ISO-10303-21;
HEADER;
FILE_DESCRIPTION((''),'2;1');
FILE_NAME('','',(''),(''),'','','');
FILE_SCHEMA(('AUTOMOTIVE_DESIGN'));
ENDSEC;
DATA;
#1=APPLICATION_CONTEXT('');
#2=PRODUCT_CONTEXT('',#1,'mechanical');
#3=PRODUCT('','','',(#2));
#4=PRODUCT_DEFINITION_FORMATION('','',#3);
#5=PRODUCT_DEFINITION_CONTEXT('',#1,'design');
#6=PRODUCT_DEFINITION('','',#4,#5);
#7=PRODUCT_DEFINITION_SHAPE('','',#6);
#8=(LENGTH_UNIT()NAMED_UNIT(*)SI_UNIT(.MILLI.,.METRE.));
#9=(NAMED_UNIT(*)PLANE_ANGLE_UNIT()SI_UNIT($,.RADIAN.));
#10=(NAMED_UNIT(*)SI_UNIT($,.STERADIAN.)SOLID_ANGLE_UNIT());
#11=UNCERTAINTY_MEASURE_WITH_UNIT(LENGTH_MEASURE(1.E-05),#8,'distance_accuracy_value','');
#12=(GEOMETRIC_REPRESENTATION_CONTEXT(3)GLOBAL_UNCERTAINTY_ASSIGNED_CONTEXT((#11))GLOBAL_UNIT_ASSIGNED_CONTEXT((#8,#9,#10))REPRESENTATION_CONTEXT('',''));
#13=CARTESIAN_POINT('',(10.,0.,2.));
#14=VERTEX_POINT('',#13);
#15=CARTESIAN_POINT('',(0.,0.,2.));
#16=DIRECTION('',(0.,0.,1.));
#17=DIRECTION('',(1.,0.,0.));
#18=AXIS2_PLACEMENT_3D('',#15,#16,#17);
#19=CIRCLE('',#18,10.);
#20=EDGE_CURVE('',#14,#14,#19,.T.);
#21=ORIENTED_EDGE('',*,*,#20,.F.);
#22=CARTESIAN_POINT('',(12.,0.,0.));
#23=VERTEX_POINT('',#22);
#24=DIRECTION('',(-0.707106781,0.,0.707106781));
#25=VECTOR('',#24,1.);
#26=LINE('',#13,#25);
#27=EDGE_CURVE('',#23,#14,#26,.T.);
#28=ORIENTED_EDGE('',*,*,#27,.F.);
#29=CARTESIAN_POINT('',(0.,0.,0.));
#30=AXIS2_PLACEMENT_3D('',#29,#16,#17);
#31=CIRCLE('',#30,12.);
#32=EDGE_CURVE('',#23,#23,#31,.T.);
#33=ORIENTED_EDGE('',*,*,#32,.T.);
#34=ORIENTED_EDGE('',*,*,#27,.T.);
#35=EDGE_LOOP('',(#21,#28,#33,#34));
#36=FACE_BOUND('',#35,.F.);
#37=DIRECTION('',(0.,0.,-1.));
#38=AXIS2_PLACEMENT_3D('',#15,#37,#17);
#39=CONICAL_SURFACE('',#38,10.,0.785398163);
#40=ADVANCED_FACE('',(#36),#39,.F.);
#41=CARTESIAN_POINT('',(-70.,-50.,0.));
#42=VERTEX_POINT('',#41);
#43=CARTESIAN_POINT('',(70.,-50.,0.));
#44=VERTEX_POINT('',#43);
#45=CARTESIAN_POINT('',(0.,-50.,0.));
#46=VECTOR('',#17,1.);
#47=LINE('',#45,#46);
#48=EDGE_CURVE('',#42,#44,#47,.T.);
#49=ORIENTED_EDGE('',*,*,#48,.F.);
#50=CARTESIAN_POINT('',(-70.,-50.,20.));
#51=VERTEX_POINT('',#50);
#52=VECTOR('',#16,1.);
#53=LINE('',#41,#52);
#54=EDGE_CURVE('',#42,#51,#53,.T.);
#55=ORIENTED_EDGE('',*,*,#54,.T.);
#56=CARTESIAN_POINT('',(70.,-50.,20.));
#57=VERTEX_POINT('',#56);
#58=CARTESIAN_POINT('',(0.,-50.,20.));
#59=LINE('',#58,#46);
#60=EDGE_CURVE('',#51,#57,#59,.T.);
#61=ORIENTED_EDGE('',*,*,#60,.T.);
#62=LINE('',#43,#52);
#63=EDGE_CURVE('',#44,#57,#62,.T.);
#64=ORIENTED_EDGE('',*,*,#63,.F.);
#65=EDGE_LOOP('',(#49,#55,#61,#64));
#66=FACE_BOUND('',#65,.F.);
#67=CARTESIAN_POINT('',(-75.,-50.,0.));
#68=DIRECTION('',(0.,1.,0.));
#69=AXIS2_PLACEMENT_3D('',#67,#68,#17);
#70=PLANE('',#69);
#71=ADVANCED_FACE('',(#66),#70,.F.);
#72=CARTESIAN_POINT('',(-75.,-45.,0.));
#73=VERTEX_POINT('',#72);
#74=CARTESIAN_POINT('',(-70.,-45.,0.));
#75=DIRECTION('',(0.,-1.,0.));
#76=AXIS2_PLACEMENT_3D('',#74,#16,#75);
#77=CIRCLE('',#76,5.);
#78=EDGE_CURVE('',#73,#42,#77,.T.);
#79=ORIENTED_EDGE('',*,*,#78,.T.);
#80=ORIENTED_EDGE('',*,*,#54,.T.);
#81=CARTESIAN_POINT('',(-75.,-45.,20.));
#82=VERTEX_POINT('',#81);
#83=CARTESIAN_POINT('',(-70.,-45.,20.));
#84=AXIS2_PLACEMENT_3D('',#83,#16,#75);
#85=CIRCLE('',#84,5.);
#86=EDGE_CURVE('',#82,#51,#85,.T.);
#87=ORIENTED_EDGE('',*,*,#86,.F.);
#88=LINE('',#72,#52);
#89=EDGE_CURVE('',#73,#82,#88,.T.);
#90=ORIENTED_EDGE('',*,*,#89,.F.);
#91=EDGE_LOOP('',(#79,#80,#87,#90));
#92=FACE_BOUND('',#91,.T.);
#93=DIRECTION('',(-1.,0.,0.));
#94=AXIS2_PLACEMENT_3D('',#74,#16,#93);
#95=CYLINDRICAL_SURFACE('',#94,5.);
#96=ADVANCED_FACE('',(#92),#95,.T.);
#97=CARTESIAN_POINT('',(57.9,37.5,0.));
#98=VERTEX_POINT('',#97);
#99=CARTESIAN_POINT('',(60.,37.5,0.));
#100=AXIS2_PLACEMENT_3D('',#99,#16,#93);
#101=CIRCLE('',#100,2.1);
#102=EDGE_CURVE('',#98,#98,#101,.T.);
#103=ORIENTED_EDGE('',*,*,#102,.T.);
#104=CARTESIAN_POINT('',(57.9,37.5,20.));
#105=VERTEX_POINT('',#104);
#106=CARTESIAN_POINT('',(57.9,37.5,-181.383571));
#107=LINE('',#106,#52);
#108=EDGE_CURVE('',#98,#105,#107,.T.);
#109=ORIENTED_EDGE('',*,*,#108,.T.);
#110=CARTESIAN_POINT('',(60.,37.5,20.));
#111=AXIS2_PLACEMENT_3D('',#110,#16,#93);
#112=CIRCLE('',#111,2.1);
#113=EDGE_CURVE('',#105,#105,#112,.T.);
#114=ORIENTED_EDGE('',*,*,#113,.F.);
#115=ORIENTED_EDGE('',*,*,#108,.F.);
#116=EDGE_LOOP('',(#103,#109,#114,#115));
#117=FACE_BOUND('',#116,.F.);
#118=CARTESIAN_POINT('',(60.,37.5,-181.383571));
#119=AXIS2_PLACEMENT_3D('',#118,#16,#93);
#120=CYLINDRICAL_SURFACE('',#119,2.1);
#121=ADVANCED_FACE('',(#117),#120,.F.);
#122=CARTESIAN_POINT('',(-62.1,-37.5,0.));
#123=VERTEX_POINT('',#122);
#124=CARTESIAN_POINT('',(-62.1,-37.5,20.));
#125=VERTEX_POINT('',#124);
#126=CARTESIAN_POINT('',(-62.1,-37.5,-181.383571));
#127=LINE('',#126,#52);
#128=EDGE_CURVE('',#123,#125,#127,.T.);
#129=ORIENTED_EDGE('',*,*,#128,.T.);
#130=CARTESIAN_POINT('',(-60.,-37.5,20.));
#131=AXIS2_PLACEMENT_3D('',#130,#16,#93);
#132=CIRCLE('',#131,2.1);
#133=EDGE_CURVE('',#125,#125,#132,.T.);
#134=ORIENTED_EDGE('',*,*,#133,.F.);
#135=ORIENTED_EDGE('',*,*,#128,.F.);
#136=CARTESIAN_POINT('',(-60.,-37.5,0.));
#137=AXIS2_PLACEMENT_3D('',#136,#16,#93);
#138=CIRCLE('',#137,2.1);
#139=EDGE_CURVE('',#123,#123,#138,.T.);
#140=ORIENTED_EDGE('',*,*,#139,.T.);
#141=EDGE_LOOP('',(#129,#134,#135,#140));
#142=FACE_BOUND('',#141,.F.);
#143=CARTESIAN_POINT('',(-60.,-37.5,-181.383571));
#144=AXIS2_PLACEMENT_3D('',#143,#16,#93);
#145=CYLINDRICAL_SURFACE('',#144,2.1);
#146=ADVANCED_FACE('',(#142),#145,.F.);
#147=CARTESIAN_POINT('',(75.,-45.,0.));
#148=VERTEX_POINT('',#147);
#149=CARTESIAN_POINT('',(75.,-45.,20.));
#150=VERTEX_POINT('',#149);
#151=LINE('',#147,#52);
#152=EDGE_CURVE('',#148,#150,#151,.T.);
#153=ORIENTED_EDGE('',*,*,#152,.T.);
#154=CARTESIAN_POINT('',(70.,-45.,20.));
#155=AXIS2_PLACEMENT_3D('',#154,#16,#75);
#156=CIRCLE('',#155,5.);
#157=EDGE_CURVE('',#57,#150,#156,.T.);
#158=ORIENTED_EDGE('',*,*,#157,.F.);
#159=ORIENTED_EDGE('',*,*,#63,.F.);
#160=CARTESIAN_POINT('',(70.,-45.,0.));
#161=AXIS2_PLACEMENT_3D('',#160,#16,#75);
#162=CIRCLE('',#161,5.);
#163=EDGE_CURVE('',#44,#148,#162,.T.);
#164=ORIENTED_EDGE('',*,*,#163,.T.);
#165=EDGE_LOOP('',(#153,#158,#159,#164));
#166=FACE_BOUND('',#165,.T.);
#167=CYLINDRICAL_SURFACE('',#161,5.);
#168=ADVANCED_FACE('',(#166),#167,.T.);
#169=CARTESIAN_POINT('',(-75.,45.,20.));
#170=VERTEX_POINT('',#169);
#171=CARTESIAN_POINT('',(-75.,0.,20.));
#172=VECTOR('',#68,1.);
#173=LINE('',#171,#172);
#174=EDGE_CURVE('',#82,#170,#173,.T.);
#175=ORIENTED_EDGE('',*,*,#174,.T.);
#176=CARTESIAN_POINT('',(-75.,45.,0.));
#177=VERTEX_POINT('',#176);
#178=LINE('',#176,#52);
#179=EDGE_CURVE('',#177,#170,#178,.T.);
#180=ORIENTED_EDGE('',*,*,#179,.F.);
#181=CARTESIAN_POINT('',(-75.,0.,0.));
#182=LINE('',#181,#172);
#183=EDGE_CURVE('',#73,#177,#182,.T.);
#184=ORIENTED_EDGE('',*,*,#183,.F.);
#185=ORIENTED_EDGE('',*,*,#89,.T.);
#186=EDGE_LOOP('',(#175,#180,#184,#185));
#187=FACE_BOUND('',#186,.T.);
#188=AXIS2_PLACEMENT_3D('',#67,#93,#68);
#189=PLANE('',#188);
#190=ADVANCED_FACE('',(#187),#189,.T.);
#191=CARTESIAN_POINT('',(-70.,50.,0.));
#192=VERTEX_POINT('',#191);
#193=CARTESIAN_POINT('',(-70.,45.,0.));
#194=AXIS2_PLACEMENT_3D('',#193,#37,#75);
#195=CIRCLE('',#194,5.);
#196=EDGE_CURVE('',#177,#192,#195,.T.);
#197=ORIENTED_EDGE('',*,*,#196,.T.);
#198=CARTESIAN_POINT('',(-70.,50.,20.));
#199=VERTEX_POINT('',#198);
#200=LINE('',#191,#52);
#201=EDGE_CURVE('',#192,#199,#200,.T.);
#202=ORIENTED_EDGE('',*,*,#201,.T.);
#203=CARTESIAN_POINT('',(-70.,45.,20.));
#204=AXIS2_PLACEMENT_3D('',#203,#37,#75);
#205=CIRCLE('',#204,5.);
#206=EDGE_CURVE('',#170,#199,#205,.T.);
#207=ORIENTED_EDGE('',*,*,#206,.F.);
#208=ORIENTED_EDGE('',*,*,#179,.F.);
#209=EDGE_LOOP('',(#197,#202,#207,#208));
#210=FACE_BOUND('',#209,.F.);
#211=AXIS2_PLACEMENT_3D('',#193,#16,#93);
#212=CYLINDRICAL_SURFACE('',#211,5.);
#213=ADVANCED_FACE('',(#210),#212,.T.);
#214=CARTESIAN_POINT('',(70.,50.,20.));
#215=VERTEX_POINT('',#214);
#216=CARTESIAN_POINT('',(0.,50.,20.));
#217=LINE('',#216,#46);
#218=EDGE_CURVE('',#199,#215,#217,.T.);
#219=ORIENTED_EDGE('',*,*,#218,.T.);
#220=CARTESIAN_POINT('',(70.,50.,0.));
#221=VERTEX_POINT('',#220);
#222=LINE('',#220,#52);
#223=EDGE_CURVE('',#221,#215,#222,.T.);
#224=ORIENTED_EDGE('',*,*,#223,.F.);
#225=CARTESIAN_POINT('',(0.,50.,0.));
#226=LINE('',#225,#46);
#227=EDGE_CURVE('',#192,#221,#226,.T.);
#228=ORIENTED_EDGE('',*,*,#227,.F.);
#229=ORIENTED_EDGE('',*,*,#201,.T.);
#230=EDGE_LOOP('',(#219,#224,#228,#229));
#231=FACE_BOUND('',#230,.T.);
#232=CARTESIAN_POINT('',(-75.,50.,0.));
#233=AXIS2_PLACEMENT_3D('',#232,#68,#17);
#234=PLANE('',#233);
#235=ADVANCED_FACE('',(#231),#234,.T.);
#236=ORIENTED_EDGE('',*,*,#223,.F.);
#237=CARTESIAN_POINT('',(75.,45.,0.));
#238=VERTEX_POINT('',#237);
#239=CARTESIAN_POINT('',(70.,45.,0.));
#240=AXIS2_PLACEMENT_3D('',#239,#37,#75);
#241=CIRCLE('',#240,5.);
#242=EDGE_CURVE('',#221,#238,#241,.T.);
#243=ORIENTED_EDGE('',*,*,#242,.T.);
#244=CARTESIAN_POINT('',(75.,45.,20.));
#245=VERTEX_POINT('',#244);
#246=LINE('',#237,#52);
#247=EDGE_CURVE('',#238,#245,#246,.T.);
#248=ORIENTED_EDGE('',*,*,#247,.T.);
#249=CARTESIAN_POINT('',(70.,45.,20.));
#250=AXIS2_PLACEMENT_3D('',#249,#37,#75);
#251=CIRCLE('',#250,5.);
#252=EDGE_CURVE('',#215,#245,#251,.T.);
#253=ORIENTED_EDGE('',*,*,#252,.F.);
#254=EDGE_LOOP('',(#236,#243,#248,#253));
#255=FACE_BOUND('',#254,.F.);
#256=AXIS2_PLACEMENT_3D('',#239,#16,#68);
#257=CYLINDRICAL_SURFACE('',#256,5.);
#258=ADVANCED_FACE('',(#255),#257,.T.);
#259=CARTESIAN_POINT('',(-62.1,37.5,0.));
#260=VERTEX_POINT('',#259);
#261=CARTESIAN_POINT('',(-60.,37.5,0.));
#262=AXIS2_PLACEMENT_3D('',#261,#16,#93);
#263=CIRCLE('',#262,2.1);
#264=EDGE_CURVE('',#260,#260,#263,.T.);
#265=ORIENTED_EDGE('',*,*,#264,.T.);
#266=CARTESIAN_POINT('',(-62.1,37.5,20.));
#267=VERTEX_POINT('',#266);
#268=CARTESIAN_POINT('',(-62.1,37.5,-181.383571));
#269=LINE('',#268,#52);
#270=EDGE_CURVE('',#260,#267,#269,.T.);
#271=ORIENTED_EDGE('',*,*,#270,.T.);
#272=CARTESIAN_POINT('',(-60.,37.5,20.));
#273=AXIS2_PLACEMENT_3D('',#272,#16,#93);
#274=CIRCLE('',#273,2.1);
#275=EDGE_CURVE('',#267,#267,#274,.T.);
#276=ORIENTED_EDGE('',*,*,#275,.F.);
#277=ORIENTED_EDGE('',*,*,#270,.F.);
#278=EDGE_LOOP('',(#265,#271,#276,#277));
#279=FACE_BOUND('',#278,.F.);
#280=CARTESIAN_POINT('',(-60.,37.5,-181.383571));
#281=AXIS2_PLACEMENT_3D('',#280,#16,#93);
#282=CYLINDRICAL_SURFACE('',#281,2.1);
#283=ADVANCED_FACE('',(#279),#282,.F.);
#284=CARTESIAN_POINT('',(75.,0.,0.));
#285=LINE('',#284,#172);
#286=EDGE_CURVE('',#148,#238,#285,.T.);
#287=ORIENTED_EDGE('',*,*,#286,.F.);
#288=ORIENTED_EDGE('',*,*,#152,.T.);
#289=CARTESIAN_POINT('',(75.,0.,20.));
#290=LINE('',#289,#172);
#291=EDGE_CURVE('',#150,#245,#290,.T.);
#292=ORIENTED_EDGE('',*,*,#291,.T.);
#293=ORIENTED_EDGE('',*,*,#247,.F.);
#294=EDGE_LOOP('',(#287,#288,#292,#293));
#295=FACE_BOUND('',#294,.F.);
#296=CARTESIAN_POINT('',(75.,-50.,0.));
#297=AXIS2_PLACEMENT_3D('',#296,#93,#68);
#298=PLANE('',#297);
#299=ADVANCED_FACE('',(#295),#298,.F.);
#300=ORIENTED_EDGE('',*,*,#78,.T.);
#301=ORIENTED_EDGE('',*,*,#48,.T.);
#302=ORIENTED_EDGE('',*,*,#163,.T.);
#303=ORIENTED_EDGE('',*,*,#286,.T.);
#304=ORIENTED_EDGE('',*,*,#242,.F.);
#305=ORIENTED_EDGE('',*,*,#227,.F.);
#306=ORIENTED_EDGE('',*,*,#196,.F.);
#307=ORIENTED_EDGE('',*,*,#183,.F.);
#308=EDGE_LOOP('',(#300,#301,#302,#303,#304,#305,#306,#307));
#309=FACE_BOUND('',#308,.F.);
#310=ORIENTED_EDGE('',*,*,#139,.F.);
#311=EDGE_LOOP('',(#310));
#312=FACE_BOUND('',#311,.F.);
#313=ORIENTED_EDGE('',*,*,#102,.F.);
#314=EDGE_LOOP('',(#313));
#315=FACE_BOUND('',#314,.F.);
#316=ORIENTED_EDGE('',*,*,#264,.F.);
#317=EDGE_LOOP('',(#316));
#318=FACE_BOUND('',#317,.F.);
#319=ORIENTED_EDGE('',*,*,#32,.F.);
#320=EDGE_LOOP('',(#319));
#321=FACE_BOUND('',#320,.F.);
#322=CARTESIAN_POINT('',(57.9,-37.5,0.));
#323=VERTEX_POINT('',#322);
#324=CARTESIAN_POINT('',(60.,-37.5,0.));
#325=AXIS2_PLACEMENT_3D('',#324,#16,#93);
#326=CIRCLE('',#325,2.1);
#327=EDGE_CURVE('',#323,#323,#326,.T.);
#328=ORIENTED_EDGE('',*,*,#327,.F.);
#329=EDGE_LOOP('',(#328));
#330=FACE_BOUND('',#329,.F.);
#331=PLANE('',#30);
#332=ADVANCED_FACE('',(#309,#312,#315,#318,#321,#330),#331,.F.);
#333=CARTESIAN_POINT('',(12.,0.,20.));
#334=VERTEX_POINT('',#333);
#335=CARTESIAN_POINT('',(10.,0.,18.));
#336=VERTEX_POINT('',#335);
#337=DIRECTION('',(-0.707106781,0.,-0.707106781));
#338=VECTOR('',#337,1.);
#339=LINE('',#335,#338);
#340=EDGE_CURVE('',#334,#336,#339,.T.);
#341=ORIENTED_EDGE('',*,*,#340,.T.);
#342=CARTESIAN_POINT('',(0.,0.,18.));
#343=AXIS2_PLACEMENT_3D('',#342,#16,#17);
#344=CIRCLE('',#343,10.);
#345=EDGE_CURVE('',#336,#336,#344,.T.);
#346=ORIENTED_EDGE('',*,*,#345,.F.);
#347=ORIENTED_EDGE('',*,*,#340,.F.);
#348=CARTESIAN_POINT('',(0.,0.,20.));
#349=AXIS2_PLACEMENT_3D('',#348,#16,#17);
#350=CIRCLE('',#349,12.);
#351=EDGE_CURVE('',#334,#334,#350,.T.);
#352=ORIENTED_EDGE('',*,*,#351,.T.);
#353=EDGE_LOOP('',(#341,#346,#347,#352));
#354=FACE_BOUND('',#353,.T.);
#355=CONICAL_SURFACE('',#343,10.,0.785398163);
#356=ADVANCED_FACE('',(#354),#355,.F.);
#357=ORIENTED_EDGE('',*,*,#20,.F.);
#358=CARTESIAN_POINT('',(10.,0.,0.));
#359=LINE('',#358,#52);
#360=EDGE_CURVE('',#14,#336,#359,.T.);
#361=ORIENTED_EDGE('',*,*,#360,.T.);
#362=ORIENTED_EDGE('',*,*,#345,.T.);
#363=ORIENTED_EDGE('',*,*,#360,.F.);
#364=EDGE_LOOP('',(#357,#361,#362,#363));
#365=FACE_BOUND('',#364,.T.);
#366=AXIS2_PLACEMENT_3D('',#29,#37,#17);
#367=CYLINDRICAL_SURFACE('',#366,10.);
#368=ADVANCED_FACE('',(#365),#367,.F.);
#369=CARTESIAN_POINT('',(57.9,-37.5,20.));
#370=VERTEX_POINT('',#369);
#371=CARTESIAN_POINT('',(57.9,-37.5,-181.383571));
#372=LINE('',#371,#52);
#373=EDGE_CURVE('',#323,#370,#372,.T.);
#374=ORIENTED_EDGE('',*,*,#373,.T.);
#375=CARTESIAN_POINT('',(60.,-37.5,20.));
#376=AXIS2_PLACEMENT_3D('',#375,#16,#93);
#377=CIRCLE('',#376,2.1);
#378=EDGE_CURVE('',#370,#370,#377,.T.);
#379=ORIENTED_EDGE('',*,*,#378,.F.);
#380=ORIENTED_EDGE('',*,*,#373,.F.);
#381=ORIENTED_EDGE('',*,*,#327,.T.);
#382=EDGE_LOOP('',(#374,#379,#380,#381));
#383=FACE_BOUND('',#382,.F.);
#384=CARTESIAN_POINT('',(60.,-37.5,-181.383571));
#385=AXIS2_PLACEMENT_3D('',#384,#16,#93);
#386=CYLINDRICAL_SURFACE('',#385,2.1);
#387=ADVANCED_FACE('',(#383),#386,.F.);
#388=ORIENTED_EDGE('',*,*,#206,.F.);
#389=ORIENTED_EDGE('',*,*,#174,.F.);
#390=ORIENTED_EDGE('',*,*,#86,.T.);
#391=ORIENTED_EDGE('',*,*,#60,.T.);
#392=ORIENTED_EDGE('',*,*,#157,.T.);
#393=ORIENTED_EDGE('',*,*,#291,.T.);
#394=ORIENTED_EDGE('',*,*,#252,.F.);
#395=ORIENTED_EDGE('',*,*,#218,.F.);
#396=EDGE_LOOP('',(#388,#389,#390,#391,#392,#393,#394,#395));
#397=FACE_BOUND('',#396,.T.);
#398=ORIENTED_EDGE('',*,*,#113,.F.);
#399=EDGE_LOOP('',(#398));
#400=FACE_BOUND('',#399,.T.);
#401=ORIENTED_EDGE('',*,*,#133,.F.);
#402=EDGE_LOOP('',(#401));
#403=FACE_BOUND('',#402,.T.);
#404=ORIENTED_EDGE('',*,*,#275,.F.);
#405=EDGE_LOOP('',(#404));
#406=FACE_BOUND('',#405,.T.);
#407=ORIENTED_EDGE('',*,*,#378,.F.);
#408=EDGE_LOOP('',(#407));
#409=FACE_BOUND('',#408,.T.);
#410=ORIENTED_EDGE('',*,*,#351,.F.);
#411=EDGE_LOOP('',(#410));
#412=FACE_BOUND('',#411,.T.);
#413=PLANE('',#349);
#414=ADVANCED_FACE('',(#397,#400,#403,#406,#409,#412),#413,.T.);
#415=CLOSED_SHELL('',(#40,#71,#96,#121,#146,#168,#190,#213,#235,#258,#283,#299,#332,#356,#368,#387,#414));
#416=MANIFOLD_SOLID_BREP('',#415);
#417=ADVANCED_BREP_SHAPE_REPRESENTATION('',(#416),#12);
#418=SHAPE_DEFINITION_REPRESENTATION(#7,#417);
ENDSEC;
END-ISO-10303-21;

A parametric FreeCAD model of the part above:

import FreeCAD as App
import Part
import Sketcher

V = App.Vector
Q = App.Units.Quantity


def edges_at(feature, points):
    """Names of the edges that pass closest to the given points."""
    edges = feature.Shape.Edges
    near = lambda p: min(range(len(edges)), key=lambda i: edges[i].distToShape(Part.Vertex(*p))[0])
    return sorted({f"Edge{near(p) + 1}" for p in points})


def add_polygon(sketch, points):
    """Adds a closed chain of lines whose ends are joined by coincident constraints."""
    first, n = sketch.GeometryCount, len(points)
    for a, b in zip(points, points[1:] + points[:1]):
        sketch.addGeometry(Part.LineSegment(App.Vector(*a, 0), App.Vector(*b, 0)), False)
    for i in range(n):
        sketch.addConstraint(Sketcher.Constraint("Coincident", first + i, 2, first + (i + 1) % n, 1))

doc = App.newDocument("Part")
body = doc.addObject("PartDesign::Body", "Body")

sketch1 = body.newObject("Sketcher::SketchObject", "Sketch")
sketch1.AttachmentSupport = (doc.getObject("XY_Plane"), [""])
sketch1.MapMode = "FlatFace"
add_polygon(sketch1, [(-75, 50), (-75, -50), (75, -50), (75, 50)])
sketch1.addGeometry(Part.Circle(V(0, 0, 0), V(0, 0, 1), 10), False)
sketch1.addConstraint([
    Sketcher.Constraint("Vertical", 0),
    Sketcher.Constraint("Horizontal", 1),
    Sketcher.Constraint("Vertical", 2),
    Sketcher.Constraint("Horizontal", 3),
    Sketcher.Constraint("Coincident", 4, 3, -1, 1),
    Sketcher.Constraint("Symmetric", 0, 2, 2, 2, -1, 1),
    Sketcher.Constraint("Diameter", 4, Q("20 mm")),
    Sketcher.Constraint("DistanceX", 1, 1, 1, 2, Q("150 mm")),
    Sketcher.Constraint("DistanceY", 0, 2, 0, 1, Q("100 mm")),
])
pad1 = body.newObject("PartDesign::Pad", "Pad")
pad1.Profile = sketch1
pad1.Length = 20
doc.recompute()

fillet = body.newObject("PartDesign::Fillet", "Fillet")
fillet.Base = (pad1, edges_at(pad1, [
    (-75, -50, 10),
    (-75, 50, 10),
    (75, -50, 10),
    (75, 50, 10),
]))
fillet.Radius = 5
doc.recompute()

chamfer = body.newObject("PartDesign::Chamfer", "Chamfer")
chamfer.Base = (fillet, edges_at(fillet, [(-10, 0, 0), (-10, 0, 20)]))
chamfer.Size = 2

sketch2 = body.newObject("Sketcher::SketchObject", "Sketch001")
sketch2.AttachmentSupport = (doc.getObject("XY_Plane"), [""])
sketch2.MapMode = "FlatFace"
sketch2.addGeometry([
    Part.Circle(V(60, 37.5, 0), V(0, 0, 1), 2.1),
    Part.Circle(V(-60, 37.5, 0), V(0, 0, 1), 2.1),
    Part.Circle(V(-60, -37.5, 0), V(0, 0, 1), 2.1),
    Part.Circle(V(60, -37.5, 0), V(0, 0, 1), 2.1),
], False)
sketch2.addConstraint([
    Sketcher.Constraint("Equal", 0, 1),
    Sketcher.Constraint("Equal", 1, 2),
    Sketcher.Constraint("Equal", 2, 3),
    Sketcher.Constraint("Symmetric", 0, 3, 2, 3, -1, 1),
    Sketcher.Constraint("Symmetric", 1, 3, 3, 3, -1, 1),
    Sketcher.Constraint("Symmetric", 0, 3, 1, 3, -2),
    Sketcher.Constraint("Diameter", 0, Q("4.2 mm")),
    Sketcher.Constraint("DistanceX", -1, 1, 0, 3, Q("60 mm")),
    Sketcher.Constraint("DistanceY", 2, 3, 1, 3, Q("75 mm")),
])
doc.recompute()
hole = body.newObject("PartDesign::Hole", "Hole")
hole.Profile = sketch2
hole.ThreadType = "None"
hole.Diameter = 4.2
hole.DepthType = "ThroughAll"
hole.Reversed = True

doc.recompute()
